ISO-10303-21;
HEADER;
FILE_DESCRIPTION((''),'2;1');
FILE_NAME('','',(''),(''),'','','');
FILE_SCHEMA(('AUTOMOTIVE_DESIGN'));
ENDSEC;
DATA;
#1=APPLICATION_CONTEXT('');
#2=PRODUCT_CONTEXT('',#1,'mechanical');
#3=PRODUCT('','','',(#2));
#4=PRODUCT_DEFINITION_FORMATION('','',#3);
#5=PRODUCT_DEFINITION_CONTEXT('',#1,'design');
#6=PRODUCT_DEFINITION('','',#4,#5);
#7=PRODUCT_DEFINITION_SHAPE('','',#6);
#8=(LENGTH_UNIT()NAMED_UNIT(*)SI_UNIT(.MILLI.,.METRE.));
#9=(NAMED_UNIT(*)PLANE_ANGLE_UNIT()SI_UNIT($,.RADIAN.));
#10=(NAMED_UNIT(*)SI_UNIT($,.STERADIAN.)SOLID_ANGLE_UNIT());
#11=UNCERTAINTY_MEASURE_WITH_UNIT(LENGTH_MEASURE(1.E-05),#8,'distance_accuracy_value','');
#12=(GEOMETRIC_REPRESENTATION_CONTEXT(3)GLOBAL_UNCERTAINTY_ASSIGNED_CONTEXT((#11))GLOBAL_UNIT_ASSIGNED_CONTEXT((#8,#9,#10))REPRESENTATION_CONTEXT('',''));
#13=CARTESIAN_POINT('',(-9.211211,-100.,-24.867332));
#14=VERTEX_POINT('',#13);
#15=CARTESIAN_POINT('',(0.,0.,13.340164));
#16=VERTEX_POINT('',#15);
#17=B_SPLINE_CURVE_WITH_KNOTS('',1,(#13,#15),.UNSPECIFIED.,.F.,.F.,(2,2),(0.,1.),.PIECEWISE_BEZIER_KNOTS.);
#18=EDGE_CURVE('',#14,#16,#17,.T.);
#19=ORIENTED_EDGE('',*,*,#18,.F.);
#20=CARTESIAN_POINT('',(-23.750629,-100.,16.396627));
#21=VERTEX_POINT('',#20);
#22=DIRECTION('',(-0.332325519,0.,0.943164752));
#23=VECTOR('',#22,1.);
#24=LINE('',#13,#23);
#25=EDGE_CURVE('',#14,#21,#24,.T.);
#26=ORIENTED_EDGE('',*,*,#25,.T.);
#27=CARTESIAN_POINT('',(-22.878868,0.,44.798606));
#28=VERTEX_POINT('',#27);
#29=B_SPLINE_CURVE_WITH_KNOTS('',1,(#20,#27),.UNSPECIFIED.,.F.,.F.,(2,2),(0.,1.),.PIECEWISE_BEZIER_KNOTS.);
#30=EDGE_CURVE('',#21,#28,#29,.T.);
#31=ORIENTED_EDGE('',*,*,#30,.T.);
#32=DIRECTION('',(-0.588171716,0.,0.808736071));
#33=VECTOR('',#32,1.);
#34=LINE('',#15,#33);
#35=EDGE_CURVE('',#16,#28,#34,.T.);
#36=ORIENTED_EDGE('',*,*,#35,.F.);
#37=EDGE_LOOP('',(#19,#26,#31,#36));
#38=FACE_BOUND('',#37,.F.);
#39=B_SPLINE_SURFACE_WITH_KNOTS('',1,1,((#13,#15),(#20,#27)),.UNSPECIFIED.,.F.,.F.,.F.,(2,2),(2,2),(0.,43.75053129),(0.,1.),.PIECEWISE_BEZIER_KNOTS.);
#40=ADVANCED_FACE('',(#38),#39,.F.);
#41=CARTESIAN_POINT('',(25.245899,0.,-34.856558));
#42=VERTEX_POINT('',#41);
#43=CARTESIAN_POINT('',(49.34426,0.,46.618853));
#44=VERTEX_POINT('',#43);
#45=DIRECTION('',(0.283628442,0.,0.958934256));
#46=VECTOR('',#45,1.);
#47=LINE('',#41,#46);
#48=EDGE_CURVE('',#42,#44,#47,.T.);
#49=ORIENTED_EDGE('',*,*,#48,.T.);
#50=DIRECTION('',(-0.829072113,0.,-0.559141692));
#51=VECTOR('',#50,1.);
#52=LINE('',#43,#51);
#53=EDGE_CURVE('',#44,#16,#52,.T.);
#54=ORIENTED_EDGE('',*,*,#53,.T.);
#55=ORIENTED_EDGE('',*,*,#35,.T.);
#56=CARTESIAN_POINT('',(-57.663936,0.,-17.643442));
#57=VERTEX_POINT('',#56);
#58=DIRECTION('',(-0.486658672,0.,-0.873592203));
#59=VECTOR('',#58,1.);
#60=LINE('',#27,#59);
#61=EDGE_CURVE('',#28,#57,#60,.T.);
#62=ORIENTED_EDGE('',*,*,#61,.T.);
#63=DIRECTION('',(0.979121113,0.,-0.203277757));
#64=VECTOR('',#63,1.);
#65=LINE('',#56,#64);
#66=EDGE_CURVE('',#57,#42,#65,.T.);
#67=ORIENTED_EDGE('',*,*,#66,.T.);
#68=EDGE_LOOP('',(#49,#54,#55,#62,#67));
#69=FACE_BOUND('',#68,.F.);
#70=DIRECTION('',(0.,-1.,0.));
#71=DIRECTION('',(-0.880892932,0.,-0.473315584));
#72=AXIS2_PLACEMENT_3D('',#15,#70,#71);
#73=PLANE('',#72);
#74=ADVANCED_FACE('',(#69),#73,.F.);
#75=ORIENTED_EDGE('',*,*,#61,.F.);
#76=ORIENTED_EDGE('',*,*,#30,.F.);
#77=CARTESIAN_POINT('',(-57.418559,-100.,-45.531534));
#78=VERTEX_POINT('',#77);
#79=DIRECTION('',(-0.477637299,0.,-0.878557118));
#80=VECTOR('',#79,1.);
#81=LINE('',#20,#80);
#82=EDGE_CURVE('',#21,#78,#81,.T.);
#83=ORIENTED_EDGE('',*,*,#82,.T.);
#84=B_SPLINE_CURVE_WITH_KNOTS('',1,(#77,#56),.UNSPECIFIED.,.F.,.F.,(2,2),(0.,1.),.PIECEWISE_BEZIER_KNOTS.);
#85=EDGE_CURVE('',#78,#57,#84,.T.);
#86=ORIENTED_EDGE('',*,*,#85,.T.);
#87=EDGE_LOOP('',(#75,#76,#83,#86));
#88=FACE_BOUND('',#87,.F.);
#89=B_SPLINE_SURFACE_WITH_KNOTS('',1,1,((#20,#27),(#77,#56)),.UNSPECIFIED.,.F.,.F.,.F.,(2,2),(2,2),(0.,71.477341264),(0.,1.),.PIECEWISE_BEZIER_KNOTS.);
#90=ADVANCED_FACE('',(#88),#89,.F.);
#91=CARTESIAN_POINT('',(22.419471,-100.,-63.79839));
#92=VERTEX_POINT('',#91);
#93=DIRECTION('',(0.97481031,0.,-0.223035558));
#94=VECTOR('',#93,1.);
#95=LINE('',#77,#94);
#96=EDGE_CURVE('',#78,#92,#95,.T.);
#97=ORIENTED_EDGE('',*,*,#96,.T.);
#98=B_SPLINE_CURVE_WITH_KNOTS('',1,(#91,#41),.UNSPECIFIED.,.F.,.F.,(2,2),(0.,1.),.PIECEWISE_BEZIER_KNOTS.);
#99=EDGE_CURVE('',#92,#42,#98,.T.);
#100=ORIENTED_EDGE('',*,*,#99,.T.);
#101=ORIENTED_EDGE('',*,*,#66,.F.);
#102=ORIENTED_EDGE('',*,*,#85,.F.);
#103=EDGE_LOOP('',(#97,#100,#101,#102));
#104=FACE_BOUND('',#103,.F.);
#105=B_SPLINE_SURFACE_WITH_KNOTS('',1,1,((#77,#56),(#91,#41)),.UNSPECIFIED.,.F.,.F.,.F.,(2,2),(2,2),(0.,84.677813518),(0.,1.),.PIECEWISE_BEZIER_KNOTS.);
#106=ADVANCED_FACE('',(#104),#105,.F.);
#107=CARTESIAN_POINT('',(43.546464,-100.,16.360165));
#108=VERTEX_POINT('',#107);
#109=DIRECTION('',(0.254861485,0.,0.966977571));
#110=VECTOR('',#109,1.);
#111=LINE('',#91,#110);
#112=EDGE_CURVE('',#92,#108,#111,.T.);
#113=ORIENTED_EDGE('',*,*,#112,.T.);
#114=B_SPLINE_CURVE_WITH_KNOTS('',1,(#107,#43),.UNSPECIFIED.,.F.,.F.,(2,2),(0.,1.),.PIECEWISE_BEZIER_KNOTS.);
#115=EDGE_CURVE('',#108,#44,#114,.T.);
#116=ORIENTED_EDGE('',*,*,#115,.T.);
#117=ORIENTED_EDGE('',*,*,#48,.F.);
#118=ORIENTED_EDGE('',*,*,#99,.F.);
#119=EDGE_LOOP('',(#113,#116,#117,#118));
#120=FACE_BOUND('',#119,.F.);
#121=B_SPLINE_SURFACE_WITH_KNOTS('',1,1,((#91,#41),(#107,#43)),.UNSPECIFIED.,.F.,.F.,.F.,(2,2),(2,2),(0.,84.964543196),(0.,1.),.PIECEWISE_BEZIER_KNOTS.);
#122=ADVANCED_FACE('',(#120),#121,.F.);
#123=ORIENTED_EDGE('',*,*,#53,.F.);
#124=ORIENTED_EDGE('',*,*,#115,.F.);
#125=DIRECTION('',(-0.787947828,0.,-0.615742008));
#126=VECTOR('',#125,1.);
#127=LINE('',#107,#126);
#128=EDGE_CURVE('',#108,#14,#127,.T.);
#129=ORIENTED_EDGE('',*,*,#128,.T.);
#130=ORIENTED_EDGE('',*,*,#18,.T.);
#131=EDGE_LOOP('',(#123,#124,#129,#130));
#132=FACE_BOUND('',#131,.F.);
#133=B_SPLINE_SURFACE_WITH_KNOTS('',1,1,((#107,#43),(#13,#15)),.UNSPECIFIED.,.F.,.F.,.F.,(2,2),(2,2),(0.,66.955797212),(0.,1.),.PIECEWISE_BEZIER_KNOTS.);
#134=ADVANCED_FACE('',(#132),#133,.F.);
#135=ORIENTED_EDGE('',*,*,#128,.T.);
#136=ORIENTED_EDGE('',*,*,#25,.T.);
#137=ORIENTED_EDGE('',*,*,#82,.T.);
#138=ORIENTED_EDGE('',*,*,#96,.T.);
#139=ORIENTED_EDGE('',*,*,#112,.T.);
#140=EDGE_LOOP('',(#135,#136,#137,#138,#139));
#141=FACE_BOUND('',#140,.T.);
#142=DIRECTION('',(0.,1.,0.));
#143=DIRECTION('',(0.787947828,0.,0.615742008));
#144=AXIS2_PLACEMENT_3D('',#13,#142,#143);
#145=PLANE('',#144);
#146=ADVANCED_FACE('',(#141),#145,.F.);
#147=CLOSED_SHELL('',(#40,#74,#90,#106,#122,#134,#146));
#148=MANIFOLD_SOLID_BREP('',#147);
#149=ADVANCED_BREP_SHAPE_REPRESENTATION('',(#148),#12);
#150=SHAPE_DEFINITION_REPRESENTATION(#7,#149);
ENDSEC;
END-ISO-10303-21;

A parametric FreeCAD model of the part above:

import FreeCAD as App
import Part
import Sketcher
Q = App.Units.Quantity


def add_polygon(sketch, points):
    """Adds a closed chain of lines whose ends are joined by coincident constraints."""
    first, n = sketch.GeometryCount, len(points)
    for a, b in zip(points, points[1:] + points[:1]):
        sketch.addGeometry(Part.LineSegment(App.Vector(*a, 0), App.Vector(*b, 0)), False)
    for i in range(n):
        sketch.addConstraint(Sketcher.Constraint("Coincident", first + i, 2, first + (i + 1) % n, 1))

doc = App.newDocument("Part")
body = doc.addObject("PartDesign::Body", "Body")

# Sketch on XZ plane
sketch1 = doc.addObject("Sketcher::SketchObject", "Sketch")
body.addObject(sketch1)
sketch1.AttachmentSupport = (doc.XZ_Plane, [""])
sketch1.MapMode = "FlatFace"
sketch1.AttachmentOffset = App.Placement(App.Vector(0, 0, 100), App.Rotation())
add_polygon(sketch1, [(-9, -25), (-24, 16), (-57, -46), (22, -64), (44, 16)])  # lines 0-4
sketch1.addConstraint(Sketcher.Constraint("Angle", 0, Q("109.409986 deg")))
sketch1.addConstraint(Sketcher.Constraint("DistanceX", 0, 2, 2, 2, 46.1701))
sketch1.addConstraint(Sketcher.Constraint("DistanceY", 1, 2, 3, 2, 61.891699))
sketch1.addConstraint(Sketcher.Constraint("DistanceY", 1, 2, 4, 2, 20.664202))
sketch1.addConstraint(Sketcher.Constraint("Distance", 0, 43.750531))
sketch1.addConstraint(Sketcher.Constraint("Distance", 3, 82.895982))
sketch1.addConstraint(Sketcher.Constraint("DistanceX", 0, 2, -1, 1, 23.750629))
sketch1.addConstraint(Sketcher.Constraint("DistanceX", 1, 2, -1, 1, 57.418559))
sketch1.addConstraint(Sketcher.Constraint("DistanceY", 2, 2, -1, 1, 63.79839))
sketch1.addConstraint(Sketcher.Constraint("Distance", 2, 81.901093))

# Sketch on XZ plane
sketch2 = doc.addObject("Sketcher::SketchObject", "Sketch001")
body.addObject(sketch2)
sketch2.AttachmentSupport = (doc.XZ_Plane, [""])
sketch2.MapMode = "FlatFace"
add_polygon(sketch2, [(0, 13), (-23, 45), (-58, -18), (25, -35), (49, 47)])  # lines 0-4
sketch2.addConstraint(Sketcher.Constraint("PointOnObject", 4, 2, -2))
sketch2.addConstraint(Sketcher.Constraint("DistanceX", -1, 1, 2, 2, 25.245899))
sketch2.addConstraint(Sketcher.Constraint("Distance", 0, 38.89828))
sketch2.addConstraint(Sketcher.Constraint("Distance", 1, 71.477341))
sketch2.addConstraint(Sketcher.Constraint("DistanceX", 0, 2, -1, 1, 22.878868))
sketch2.addConstraint(Sketcher.Constraint("DistanceX", -1, 1, 3, 2, 49.34426))
sketch2.addConstraint(Sketcher.Constraint("DistanceY", 2, 2, 3, 2, 81.475411))
sketch2.addConstraint(Sketcher.Constraint("DistanceY", 4, 2, 3, 2, 33.278689))
sketch2.addConstraint(Sketcher.Constraint("Distance", 2, 84.677814))
sketch2.addConstraint(Sketcher.Constraint("DistanceY", -1, 1, 0, 2, 44.798606))

additiveloft = doc.addObject("PartDesign::AdditiveLoft", "AdditiveLoft")
body.addObject(additiveloft)
additiveloft.Profile = sketch1
additiveloft.Sections = [sketch2]

doc.recompute()
